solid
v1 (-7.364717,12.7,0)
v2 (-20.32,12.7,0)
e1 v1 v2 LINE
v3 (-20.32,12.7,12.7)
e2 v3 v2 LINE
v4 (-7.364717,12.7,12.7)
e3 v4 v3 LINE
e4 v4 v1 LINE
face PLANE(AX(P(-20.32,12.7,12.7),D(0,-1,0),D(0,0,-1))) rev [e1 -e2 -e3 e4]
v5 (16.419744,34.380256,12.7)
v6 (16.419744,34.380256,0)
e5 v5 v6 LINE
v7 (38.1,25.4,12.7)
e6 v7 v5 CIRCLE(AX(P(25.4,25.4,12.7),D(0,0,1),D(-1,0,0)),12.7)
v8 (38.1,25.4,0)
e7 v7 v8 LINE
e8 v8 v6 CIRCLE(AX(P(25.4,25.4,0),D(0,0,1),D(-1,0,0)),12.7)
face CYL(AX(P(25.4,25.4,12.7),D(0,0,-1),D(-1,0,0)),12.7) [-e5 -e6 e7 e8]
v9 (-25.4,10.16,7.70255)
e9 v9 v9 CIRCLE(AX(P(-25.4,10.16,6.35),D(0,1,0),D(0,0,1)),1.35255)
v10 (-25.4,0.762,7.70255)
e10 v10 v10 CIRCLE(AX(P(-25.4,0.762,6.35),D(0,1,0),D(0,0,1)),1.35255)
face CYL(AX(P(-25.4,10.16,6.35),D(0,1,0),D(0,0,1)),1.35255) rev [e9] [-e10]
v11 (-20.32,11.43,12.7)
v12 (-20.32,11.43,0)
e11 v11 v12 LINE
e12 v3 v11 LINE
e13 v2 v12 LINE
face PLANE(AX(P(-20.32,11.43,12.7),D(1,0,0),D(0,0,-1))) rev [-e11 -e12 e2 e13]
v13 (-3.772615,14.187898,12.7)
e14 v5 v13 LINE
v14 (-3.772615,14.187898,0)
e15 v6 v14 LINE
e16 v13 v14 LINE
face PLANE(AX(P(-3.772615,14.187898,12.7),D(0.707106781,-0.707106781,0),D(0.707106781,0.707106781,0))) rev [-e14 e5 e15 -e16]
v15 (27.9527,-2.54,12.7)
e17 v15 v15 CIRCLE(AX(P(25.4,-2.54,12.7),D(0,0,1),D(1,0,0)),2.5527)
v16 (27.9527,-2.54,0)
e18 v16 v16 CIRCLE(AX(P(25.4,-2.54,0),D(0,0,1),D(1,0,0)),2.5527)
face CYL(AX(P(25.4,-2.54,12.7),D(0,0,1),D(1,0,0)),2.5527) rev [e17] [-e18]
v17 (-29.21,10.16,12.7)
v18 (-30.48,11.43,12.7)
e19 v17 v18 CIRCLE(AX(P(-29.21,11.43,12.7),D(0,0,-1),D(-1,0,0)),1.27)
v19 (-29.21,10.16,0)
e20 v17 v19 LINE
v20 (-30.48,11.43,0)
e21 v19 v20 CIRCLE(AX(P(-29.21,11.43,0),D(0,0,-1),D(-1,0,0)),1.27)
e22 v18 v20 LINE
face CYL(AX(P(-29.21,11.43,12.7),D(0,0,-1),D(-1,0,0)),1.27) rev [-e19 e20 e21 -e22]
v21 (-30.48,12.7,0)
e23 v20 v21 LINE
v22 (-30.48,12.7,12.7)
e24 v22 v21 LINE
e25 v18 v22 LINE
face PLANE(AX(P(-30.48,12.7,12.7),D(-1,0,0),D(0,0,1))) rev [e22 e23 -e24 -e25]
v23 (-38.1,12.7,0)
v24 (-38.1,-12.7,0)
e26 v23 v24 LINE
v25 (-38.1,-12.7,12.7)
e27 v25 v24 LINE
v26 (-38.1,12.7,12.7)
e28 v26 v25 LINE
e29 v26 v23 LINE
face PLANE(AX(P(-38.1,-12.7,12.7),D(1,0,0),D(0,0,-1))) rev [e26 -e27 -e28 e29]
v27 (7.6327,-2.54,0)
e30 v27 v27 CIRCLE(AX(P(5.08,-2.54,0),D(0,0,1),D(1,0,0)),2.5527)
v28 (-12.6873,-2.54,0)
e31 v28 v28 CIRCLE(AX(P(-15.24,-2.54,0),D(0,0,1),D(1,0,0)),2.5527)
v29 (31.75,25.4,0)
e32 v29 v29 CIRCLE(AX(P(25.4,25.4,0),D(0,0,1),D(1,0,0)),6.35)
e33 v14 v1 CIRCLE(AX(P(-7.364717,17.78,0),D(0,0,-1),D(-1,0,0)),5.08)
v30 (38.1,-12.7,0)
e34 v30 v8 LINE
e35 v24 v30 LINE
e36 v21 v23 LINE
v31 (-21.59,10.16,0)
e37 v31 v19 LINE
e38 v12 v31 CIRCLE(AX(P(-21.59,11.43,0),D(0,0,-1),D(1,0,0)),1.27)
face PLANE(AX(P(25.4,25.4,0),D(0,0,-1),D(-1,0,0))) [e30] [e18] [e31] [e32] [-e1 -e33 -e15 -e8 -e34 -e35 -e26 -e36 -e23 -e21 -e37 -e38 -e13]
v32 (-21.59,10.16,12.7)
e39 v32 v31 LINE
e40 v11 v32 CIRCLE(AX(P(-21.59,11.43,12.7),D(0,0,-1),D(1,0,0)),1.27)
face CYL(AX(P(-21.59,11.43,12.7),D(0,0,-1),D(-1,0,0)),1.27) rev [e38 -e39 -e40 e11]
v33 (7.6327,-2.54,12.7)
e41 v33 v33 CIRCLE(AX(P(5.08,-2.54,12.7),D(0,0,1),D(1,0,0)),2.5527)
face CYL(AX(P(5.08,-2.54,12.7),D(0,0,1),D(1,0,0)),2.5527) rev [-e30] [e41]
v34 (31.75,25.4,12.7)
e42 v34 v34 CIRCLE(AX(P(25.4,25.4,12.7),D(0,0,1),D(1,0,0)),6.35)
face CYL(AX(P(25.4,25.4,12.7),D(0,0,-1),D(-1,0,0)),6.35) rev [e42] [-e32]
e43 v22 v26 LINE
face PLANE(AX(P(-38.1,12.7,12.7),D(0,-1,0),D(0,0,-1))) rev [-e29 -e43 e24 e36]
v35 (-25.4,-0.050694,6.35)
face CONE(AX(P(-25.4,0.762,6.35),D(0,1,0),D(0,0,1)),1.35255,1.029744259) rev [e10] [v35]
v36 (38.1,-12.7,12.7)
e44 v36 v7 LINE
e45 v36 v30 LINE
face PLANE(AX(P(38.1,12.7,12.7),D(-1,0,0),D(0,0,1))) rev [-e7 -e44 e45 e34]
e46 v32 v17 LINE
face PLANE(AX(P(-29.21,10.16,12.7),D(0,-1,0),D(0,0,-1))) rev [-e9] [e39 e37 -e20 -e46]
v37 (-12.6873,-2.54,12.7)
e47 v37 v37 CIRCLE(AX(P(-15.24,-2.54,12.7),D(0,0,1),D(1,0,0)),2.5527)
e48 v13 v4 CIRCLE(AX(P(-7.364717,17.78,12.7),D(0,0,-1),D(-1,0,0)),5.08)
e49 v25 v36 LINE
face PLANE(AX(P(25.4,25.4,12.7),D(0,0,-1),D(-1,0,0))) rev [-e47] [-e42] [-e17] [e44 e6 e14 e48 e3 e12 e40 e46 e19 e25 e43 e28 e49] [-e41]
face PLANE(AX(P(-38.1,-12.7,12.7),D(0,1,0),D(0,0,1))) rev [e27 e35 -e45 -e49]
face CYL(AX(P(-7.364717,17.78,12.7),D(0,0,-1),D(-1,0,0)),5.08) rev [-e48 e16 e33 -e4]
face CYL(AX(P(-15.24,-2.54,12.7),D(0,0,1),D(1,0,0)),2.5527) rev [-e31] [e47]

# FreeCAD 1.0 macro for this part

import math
import FreeCAD as App
import Part
import Sketcher

V = App.Vector
Q = App.Units.Quantity

doc = App.newDocument("Part")
body = doc.addObject("PartDesign::Body", "Body")

sketch1 = body.newObject("Sketcher::SketchObject", "Sketch")
sketch1.AttachmentSupport = (doc.getObject("XY_Plane"), [""])
sketch1.MapMode = "FlatFace"
sketch1.addGeometry(Part.ArcOfCircle(Part.Circle(V(25.4, 25.4, 0), V(0, 0, 1), 12.7), math.radians(0), math.radians(135)), False)
sketch1.addGeometry(Part.LineSegment(V(16.4, 34.4, 0), V(-3.8, 14.2, 0)), False)
sketch1.addGeometry(Part.ArcOfCircle(Part.Circle(V(-7.4, 17.8, 0), V(0, 0, 1), 5.1), math.radians(-90), math.radians(-45)), False)
sketch1.addGeometry(Part.LineSegment(V(-7.4, 12.7, 0), V(-20.3, 12.7, 0)), False)
sketch1.addGeometry(Part.LineSegment(V(-20.3, 12.7, 0), V(-20.3, 11.4, 0)), False)
sketch1.addGeometry(Part.ArcOfCircle(Part.Circle(V(-21.6, 11.4, 0), V(0, 0, 1), 1.3), math.radians(-90), math.radians(0)), False)
sketch1.addGeometry(Part.LineSegment(V(-21.6, 10.2, 0), V(-29.2, 10.2, 0)), False)
sketch1.addGeometry(Part.ArcOfCircle(Part.Circle(V(-29.2, 11.4, 0), V(0, 0, 1), 1.3), math.radians(180), math.radians(270)), False)
sketch1.addGeometry(Part.LineSegment(V(-30.5, 11.4, 0), V(-30.5, 12.7, 0)), False)
sketch1.addGeometry(Part.LineSegment(V(-30.5, 12.7, 0), V(-38.1, 12.7, 0)), False)
sketch1.addGeometry(Part.LineSegment(V(-38.1, 12.7, 0), V(-38.1, -12.7, 0)), False)
sketch1.addGeometry(Part.LineSegment(V(-38.1, -12.7, 0), V(38.1, -12.7, 0)), False)
sketch1.addGeometry(Part.LineSegment(V(38.1, -12.7, 0), V(38.1, 25.4, 0)), False)
sketch1.addGeometry(Part.Circle(V(25.4, 25.4, 0), V(0, 0, 1), 6.3), False)
sketch1.addConstraint(Sketcher.Constraint("Tangent", 0, 2, 1, 1))
sketch1.addConstraint(Sketcher.Constraint("Tangent", 1, 2, 2, 2))
sketch1.addConstraint(Sketcher.Constraint("Tangent", 2, 1, 3, 1))
sketch1.addConstraint(Sketcher.Constraint("Coincident", 3, 2, 4, 1))
sketch1.addConstraint(Sketcher.Constraint("Tangent", 4, 2, 5, 2))
sketch1.addConstraint(Sketcher.Constraint("Tangent", 5, 1, 6, 1))
sketch1.addConstraint(Sketcher.Constraint("Tangent", 6, 2, 7, 2))
sketch1.addConstraint(Sketcher.Constraint("Tangent", 7, 1, 8, 1))
sketch1.addConstraint(Sketcher.Constraint("Coincident", 8, 2, 9, 1))
sketch1.addConstraint(Sketcher.Constraint("Coincident", 9, 2, 10, 1))
sketch1.addConstraint(Sketcher.Constraint("Coincident", 10, 2, 11, 1))
sketch1.addConstraint(Sketcher.Constraint("Coincident", 11, 2, 12, 1))
sketch1.addConstraint(Sketcher.Constraint("Tangent", 12, 2, 0, 1))
sketch1.addConstraint(Sketcher.Constraint("Horizontal", 3))
sketch1.addConstraint(Sketcher.Constraint("Vertical", 4))
sketch1.addConstraint(Sketcher.Constraint("Horizontal", 6))
sketch1.addConstraint(Sketcher.Constraint("Vertical", 8))
sketch1.addConstraint(Sketcher.Constraint("Horizontal", 9))
sketch1.addConstraint(Sketcher.Constraint("Vertical", 10))
sketch1.addConstraint(Sketcher.Constraint("Horizontal", 11))
sketch1.addConstraint(Sketcher.Constraint("Vertical", 12))
sketch1.addConstraint(Sketcher.Constraint("Coincident", 13, 3, 0, 3))
sketch1.addConstraint(Sketcher.Constraint("Equal", 5, 7))
sketch1.addConstraint(Sketcher.Constraint("Symmetric", 9, 2, 11, 2, -1, 1))
sketch1.addConstraint(Sketcher.Constraint("Horizontal", 3, 2, 8, 2))
sketch1.addConstraint(Sketcher.Constraint("Equal", 6, 9))
sketch1.addConstraint(Sketcher.Constraint("Diameter", 13, Q("0.5 in")))
sketch1.addConstraint(Sketcher.Constraint("Radius", 0, Q("0.5 in")))
sketch1.addConstraint(Sketcher.Constraint("Radius", 2, Q("0.2 in")))
sketch1.addConstraint(Sketcher.Constraint("DistanceX", 11, 1, 11, 2, Q("3 in")))
sketch1.addConstraint(Sketcher.Constraint("DistanceY", 10, 2, 10, 1, Q("1 in")))
sketch1.addConstraint(Sketcher.Constraint("Radius", 5, Q("0.05 in")))
sketch1.addConstraint(Sketcher.Constraint("DistanceX", 6, 2, 6, 1, Q("0.3 in")))
sketch1.addConstraint(Sketcher.Constraint("DistanceY", 12, 1, 12, 2, Q("1.5 in")))
sketch1.addConstraint(Sketcher.Constraint("Angle", 1, Q("-135 deg")))
sketch1.addConstraint(Sketcher.Constraint("DistanceY", 4, 2, 4, 1, Q("0.05 in")))
pad1 = body.newObject("PartDesign::Pad", "Pad")
pad1.Profile = sketch1
pad1.Length = Q("0.5 in")

sketch2 = body.newObject("Sketcher::SketchObject", "Sketch001")
sketch2.AttachmentSupport = (doc.getObject("XY_Plane"), [""])
sketch2.MapMode = "FlatFace"
sketch2.AttachmentOffset = App.Placement(V(0, 0, 0.5 * 25.4), App.Rotation())
sketch2.addGeometry(Part.Circle(V(-15.2, -2.5, 0), V(0, 0, 1), 2.6), False)
sketch2.addGeometry(Part.Circle(V(5.1, -2.5, 0), V(0, 0, 1), 2.6), False)
sketch2.addGeometry(Part.Circle(V(25.4, -2.5, 0), V(0, 0, 1), 2.6), False)
sketch2.addConstraint(Sketcher.Constraint("Equal", 0, 1))
sketch2.addConstraint(Sketcher.Constraint("Equal", 1, 2))
sketch2.addConstraint(Sketcher.Constraint("Horizontal", 0, 3, 1, 3))
sketch2.addConstraint(Sketcher.Constraint("Horizontal", 1, 3, 2, 3))
sketch2.addConstraint(Sketcher.Constraint("Diameter", 0, Q("0.201 in")))
sketch2.addConstraint(Sketcher.Constraint("DistanceX", -1, 1, 2, 3, Q("1 in")))
sketch2.addConstraint(Sketcher.Constraint("DistanceX", 0, 3, -1, 1, Q("0.6 in")))
sketch2.addConstraint(Sketcher.Constraint("DistanceY", 0, 3, -1, 1, Q("0.1 in")))
sketch2.addConstraint(Sketcher.Constraint("DistanceX", -1, 1, 1, 3, Q("0.2 in")))
doc.recompute()
hole = body.newObject("PartDesign::Hole", "Hole")
hole.Profile = sketch2
hole.ThreadType = "None"
hole.Diameter = Q("0.201 in")
hole.DepthType = "ThroughAll"

sketch3 = body.newObject("Sketcher::SketchObject", "Sketch002")
sketch3.AttachmentSupport = (doc.getObject("XZ_Plane"), [""])
sketch3.MapMode = "FlatFace"
sketch3.AttachmentOffset = App.Placement(V(0, 0, -0.4 * 25.4), App.Rotation())
sketch3.addGeometry(Part.Circle(V(-25.4, 6.3, 0), V(0, 0, 1), 1.4), False)
sketch3.addConstraint(Sketcher.Constraint("DistanceX", 0, 3, -1, 1, Q("1 in")))
sketch3.addConstraint(Sketcher.Constraint("Diameter", 0, Q("0.1065 in")))
sketch3.addConstraint(Sketcher.Constraint("DistanceY", -1, 1, 0, 3, Q("0.25 in")))
doc.recompute()
hole2 = body.newObject("PartDesign::Hole", "Hole001")
hole2.Profile = sketch3
hole2.ThreadType = "None"
hole2.Diameter = Q("0.1065 in")
hole2.DepthType = "Dimension"
hole2.Depth = Q("0.37 in")
hole2.DrillPoint = "Angled"
hole2.DrillPointAngle = 118
hole2.Reversed = True

doc.recompute()
